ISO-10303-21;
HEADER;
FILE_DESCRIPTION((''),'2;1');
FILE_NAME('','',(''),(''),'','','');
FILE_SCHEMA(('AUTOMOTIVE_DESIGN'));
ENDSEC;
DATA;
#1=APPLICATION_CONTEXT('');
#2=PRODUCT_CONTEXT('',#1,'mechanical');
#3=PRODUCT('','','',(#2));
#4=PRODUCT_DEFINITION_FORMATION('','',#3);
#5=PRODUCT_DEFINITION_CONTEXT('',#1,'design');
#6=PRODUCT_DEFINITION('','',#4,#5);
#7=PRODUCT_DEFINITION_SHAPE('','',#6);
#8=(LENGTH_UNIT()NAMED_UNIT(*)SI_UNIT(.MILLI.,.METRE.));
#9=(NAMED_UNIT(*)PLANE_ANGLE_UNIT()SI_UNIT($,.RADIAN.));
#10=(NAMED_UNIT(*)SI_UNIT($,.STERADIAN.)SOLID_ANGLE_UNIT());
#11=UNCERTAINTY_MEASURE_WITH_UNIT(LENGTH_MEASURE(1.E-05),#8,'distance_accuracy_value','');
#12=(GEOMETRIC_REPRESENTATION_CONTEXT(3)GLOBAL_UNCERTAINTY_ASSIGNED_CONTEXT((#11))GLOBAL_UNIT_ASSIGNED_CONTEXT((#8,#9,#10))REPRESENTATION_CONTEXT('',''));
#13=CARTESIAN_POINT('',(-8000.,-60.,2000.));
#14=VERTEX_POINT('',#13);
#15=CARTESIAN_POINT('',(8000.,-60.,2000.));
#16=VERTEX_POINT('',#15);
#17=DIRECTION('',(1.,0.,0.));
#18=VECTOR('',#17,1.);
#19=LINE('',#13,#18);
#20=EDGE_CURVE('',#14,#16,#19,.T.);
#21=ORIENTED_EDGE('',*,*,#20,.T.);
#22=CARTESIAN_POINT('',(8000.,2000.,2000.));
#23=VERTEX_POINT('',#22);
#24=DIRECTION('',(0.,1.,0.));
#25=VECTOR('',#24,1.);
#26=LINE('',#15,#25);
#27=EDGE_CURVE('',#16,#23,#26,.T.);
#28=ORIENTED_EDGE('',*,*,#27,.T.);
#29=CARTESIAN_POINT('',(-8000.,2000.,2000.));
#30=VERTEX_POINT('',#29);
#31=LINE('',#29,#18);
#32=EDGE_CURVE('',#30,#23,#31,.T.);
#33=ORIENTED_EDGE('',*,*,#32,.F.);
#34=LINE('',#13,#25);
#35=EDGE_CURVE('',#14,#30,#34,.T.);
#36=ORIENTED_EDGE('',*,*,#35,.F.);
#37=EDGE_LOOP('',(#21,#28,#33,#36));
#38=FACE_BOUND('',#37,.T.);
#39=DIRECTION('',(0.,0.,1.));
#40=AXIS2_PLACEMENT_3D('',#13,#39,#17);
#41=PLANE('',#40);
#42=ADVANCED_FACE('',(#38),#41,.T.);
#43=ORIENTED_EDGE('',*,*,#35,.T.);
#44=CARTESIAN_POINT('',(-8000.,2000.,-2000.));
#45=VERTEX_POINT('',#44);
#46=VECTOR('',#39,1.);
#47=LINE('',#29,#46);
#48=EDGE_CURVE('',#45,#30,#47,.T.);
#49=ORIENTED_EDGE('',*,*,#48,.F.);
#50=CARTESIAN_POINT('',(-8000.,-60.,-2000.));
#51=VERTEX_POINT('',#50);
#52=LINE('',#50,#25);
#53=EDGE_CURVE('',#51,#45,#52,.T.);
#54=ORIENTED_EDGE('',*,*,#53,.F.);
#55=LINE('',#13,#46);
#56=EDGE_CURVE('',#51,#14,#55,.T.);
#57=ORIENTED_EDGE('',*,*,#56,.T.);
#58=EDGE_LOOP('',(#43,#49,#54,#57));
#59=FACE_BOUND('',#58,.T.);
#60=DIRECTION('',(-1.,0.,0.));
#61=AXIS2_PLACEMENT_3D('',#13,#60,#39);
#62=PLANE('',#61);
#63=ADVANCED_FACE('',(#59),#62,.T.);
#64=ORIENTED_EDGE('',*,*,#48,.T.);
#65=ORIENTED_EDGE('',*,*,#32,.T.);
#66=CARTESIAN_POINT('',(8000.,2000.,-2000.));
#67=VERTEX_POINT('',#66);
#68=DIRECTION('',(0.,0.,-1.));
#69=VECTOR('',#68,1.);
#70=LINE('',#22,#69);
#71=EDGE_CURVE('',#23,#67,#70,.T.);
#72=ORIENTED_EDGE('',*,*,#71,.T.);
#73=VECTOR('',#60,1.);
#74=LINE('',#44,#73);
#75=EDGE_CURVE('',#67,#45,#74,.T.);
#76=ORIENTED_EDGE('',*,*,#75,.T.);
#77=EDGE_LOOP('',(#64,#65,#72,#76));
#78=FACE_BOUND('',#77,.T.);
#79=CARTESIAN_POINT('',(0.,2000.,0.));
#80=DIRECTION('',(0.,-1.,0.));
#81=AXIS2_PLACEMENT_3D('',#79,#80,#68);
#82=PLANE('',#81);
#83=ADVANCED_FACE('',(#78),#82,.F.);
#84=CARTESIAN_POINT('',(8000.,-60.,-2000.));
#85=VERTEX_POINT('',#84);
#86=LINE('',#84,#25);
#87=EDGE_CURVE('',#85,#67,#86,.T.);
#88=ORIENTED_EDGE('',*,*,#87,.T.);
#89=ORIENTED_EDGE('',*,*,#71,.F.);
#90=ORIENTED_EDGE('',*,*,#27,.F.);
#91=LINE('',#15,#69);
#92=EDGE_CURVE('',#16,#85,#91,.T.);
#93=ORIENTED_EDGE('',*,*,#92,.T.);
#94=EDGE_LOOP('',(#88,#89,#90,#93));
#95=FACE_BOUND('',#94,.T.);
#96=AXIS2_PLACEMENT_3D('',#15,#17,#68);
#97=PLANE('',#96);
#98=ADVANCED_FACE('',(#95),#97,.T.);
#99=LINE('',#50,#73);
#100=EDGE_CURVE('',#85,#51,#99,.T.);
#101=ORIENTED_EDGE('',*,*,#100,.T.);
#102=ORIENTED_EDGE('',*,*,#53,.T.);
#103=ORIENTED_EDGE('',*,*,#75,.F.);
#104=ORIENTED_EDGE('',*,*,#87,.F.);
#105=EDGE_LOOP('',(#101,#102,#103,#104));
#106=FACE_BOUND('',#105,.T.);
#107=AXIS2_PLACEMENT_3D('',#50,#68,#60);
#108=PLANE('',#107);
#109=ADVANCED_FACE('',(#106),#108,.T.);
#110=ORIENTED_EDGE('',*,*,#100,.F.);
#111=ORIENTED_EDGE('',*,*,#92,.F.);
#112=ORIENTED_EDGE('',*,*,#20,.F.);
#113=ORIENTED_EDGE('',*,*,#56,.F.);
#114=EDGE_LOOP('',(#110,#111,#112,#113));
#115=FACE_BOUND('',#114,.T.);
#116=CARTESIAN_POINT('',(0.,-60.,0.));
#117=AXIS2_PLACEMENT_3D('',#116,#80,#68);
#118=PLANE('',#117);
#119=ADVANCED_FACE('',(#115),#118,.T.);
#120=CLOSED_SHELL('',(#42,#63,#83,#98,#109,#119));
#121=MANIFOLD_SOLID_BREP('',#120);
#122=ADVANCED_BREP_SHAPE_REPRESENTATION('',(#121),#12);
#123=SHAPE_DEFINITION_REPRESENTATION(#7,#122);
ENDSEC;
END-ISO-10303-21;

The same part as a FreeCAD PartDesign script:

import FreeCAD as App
import Part
import Sketcher

doc = App.newDocument("Part")
body = doc.addObject("PartDesign::Body", "Body")

sketch1 = doc.addObject("Sketcher::SketchObject", "Sketch")
body.addObject(sketch1)
sketch1.AttachmentSupport = (doc.XZ_Plane, [""])
sketch1.MapMode = "FlatFace"
sketch1.addGeometry([
    Part.LineSegment(App.Vector(-8000, -2000, 0), App.Vector(-8000, 2000, 0)),
    Part.LineSegment(App.Vector(-8000, 2000, 0), App.Vector(8000, 2000, 0)),
    Part.LineSegment(App.Vector(8000, 2000, 0), App.Vector(8000, -2000, 0)),
    Part.LineSegment(App.Vector(8000, -2000, 0), App.Vector(-8000, -2000, 0)),
], False)
sketch1.addConstraint([
    Sketcher.Constraint("Coincident", 0, 2, 1, 1),
    Sketcher.Constraint("Coincident", 1, 2, 2, 1),
    Sketcher.Constraint("Coincident", 2, 2, 3, 1),
    Sketcher.Constraint("Coincident", 3, 2, 0, 1),
    Sketcher.Constraint("Vertical", 0),
    Sketcher.Constraint("Horizontal", 1),
    Sketcher.Constraint("Vertical", 2),
    Sketcher.Constraint("Horizontal", 3),
    Sketcher.Constraint("Symmetric", 0, 2, 2, 2, -1, 1),
    Sketcher.Constraint("DistanceX", 1, 1, 1, 2, 16000.0),
    Sketcher.Constraint("DistanceY", 0, 1, 0, 2, 4000.0),
])
pad1 = doc.addObject("PartDesign::Pad", "Pad")
body.addObject(pad1)
pad1.Profile = sketch1
pad1.Type = "TwoLengths"
pad1.Length = 2000
pad1.Length2 = 60
pad1.Reversed = True

doc.recompute()
